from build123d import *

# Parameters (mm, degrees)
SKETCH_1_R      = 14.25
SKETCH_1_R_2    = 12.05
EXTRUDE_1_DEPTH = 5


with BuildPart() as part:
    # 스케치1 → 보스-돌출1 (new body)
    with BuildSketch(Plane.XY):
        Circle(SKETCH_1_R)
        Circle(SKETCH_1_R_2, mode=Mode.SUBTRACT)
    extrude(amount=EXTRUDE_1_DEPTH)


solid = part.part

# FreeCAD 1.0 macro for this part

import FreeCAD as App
import Part
import Sketcher
Q = App.Units.Quantity

doc = App.newDocument("Part")
params = doc.addObject("Spreadsheet::Sheet", "Params")
for row, (alias, value) in enumerate([
    ("sketch1_diameter", "28.5 mm"),
    ("sketch1_diameter2", "24.1 mm"),
    ("pad1_length", "5 mm"),
], start=1):
    params.set(f"A{row}", alias)
    params.set(f"B{row}", "=" + value)
    params.setAlias(f"B{row}", alias)

body = doc.addObject("PartDesign::Body", "Body")

# Sketch on XY plane
sketch1 = body.newObject("Sketcher::SketchObject", "Sketch")
sketch1.AttachmentSupport = (doc.getObject("XY_Plane"), [""])
sketch1.MapMode = "FlatFace"
sketch1.addGeometry([
    Part.Circle(App.Vector(0, 0, 0), App.Vector(0, 0, 1), 14.25),
    Part.Circle(App.Vector(0, 0, 0), App.Vector(0, 0, 1), 12.05),
], False)
sketch1.addConstraint([
    Sketcher.Constraint("Coincident", 0, 3, -1, 1),
    Sketcher.Constraint("Coincident", 1, 3, -1, 1),
    Sketcher.Constraint("Diameter", 0, Q("28.5 mm")),
    Sketcher.Constraint("Diameter", 1, Q("24.1 mm")),
])
sketch1.setExpression("Constraints[2]", "Params.sketch1_diameter")
sketch1.setExpression("Constraints[3]", "Params.sketch1_diameter2")
pad1 = body.newObject("PartDesign::Pad", "Pad")
pad1.Profile = sketch1
pad1.setExpression("Length", "Params.pad1_length")

doc.recompute()
